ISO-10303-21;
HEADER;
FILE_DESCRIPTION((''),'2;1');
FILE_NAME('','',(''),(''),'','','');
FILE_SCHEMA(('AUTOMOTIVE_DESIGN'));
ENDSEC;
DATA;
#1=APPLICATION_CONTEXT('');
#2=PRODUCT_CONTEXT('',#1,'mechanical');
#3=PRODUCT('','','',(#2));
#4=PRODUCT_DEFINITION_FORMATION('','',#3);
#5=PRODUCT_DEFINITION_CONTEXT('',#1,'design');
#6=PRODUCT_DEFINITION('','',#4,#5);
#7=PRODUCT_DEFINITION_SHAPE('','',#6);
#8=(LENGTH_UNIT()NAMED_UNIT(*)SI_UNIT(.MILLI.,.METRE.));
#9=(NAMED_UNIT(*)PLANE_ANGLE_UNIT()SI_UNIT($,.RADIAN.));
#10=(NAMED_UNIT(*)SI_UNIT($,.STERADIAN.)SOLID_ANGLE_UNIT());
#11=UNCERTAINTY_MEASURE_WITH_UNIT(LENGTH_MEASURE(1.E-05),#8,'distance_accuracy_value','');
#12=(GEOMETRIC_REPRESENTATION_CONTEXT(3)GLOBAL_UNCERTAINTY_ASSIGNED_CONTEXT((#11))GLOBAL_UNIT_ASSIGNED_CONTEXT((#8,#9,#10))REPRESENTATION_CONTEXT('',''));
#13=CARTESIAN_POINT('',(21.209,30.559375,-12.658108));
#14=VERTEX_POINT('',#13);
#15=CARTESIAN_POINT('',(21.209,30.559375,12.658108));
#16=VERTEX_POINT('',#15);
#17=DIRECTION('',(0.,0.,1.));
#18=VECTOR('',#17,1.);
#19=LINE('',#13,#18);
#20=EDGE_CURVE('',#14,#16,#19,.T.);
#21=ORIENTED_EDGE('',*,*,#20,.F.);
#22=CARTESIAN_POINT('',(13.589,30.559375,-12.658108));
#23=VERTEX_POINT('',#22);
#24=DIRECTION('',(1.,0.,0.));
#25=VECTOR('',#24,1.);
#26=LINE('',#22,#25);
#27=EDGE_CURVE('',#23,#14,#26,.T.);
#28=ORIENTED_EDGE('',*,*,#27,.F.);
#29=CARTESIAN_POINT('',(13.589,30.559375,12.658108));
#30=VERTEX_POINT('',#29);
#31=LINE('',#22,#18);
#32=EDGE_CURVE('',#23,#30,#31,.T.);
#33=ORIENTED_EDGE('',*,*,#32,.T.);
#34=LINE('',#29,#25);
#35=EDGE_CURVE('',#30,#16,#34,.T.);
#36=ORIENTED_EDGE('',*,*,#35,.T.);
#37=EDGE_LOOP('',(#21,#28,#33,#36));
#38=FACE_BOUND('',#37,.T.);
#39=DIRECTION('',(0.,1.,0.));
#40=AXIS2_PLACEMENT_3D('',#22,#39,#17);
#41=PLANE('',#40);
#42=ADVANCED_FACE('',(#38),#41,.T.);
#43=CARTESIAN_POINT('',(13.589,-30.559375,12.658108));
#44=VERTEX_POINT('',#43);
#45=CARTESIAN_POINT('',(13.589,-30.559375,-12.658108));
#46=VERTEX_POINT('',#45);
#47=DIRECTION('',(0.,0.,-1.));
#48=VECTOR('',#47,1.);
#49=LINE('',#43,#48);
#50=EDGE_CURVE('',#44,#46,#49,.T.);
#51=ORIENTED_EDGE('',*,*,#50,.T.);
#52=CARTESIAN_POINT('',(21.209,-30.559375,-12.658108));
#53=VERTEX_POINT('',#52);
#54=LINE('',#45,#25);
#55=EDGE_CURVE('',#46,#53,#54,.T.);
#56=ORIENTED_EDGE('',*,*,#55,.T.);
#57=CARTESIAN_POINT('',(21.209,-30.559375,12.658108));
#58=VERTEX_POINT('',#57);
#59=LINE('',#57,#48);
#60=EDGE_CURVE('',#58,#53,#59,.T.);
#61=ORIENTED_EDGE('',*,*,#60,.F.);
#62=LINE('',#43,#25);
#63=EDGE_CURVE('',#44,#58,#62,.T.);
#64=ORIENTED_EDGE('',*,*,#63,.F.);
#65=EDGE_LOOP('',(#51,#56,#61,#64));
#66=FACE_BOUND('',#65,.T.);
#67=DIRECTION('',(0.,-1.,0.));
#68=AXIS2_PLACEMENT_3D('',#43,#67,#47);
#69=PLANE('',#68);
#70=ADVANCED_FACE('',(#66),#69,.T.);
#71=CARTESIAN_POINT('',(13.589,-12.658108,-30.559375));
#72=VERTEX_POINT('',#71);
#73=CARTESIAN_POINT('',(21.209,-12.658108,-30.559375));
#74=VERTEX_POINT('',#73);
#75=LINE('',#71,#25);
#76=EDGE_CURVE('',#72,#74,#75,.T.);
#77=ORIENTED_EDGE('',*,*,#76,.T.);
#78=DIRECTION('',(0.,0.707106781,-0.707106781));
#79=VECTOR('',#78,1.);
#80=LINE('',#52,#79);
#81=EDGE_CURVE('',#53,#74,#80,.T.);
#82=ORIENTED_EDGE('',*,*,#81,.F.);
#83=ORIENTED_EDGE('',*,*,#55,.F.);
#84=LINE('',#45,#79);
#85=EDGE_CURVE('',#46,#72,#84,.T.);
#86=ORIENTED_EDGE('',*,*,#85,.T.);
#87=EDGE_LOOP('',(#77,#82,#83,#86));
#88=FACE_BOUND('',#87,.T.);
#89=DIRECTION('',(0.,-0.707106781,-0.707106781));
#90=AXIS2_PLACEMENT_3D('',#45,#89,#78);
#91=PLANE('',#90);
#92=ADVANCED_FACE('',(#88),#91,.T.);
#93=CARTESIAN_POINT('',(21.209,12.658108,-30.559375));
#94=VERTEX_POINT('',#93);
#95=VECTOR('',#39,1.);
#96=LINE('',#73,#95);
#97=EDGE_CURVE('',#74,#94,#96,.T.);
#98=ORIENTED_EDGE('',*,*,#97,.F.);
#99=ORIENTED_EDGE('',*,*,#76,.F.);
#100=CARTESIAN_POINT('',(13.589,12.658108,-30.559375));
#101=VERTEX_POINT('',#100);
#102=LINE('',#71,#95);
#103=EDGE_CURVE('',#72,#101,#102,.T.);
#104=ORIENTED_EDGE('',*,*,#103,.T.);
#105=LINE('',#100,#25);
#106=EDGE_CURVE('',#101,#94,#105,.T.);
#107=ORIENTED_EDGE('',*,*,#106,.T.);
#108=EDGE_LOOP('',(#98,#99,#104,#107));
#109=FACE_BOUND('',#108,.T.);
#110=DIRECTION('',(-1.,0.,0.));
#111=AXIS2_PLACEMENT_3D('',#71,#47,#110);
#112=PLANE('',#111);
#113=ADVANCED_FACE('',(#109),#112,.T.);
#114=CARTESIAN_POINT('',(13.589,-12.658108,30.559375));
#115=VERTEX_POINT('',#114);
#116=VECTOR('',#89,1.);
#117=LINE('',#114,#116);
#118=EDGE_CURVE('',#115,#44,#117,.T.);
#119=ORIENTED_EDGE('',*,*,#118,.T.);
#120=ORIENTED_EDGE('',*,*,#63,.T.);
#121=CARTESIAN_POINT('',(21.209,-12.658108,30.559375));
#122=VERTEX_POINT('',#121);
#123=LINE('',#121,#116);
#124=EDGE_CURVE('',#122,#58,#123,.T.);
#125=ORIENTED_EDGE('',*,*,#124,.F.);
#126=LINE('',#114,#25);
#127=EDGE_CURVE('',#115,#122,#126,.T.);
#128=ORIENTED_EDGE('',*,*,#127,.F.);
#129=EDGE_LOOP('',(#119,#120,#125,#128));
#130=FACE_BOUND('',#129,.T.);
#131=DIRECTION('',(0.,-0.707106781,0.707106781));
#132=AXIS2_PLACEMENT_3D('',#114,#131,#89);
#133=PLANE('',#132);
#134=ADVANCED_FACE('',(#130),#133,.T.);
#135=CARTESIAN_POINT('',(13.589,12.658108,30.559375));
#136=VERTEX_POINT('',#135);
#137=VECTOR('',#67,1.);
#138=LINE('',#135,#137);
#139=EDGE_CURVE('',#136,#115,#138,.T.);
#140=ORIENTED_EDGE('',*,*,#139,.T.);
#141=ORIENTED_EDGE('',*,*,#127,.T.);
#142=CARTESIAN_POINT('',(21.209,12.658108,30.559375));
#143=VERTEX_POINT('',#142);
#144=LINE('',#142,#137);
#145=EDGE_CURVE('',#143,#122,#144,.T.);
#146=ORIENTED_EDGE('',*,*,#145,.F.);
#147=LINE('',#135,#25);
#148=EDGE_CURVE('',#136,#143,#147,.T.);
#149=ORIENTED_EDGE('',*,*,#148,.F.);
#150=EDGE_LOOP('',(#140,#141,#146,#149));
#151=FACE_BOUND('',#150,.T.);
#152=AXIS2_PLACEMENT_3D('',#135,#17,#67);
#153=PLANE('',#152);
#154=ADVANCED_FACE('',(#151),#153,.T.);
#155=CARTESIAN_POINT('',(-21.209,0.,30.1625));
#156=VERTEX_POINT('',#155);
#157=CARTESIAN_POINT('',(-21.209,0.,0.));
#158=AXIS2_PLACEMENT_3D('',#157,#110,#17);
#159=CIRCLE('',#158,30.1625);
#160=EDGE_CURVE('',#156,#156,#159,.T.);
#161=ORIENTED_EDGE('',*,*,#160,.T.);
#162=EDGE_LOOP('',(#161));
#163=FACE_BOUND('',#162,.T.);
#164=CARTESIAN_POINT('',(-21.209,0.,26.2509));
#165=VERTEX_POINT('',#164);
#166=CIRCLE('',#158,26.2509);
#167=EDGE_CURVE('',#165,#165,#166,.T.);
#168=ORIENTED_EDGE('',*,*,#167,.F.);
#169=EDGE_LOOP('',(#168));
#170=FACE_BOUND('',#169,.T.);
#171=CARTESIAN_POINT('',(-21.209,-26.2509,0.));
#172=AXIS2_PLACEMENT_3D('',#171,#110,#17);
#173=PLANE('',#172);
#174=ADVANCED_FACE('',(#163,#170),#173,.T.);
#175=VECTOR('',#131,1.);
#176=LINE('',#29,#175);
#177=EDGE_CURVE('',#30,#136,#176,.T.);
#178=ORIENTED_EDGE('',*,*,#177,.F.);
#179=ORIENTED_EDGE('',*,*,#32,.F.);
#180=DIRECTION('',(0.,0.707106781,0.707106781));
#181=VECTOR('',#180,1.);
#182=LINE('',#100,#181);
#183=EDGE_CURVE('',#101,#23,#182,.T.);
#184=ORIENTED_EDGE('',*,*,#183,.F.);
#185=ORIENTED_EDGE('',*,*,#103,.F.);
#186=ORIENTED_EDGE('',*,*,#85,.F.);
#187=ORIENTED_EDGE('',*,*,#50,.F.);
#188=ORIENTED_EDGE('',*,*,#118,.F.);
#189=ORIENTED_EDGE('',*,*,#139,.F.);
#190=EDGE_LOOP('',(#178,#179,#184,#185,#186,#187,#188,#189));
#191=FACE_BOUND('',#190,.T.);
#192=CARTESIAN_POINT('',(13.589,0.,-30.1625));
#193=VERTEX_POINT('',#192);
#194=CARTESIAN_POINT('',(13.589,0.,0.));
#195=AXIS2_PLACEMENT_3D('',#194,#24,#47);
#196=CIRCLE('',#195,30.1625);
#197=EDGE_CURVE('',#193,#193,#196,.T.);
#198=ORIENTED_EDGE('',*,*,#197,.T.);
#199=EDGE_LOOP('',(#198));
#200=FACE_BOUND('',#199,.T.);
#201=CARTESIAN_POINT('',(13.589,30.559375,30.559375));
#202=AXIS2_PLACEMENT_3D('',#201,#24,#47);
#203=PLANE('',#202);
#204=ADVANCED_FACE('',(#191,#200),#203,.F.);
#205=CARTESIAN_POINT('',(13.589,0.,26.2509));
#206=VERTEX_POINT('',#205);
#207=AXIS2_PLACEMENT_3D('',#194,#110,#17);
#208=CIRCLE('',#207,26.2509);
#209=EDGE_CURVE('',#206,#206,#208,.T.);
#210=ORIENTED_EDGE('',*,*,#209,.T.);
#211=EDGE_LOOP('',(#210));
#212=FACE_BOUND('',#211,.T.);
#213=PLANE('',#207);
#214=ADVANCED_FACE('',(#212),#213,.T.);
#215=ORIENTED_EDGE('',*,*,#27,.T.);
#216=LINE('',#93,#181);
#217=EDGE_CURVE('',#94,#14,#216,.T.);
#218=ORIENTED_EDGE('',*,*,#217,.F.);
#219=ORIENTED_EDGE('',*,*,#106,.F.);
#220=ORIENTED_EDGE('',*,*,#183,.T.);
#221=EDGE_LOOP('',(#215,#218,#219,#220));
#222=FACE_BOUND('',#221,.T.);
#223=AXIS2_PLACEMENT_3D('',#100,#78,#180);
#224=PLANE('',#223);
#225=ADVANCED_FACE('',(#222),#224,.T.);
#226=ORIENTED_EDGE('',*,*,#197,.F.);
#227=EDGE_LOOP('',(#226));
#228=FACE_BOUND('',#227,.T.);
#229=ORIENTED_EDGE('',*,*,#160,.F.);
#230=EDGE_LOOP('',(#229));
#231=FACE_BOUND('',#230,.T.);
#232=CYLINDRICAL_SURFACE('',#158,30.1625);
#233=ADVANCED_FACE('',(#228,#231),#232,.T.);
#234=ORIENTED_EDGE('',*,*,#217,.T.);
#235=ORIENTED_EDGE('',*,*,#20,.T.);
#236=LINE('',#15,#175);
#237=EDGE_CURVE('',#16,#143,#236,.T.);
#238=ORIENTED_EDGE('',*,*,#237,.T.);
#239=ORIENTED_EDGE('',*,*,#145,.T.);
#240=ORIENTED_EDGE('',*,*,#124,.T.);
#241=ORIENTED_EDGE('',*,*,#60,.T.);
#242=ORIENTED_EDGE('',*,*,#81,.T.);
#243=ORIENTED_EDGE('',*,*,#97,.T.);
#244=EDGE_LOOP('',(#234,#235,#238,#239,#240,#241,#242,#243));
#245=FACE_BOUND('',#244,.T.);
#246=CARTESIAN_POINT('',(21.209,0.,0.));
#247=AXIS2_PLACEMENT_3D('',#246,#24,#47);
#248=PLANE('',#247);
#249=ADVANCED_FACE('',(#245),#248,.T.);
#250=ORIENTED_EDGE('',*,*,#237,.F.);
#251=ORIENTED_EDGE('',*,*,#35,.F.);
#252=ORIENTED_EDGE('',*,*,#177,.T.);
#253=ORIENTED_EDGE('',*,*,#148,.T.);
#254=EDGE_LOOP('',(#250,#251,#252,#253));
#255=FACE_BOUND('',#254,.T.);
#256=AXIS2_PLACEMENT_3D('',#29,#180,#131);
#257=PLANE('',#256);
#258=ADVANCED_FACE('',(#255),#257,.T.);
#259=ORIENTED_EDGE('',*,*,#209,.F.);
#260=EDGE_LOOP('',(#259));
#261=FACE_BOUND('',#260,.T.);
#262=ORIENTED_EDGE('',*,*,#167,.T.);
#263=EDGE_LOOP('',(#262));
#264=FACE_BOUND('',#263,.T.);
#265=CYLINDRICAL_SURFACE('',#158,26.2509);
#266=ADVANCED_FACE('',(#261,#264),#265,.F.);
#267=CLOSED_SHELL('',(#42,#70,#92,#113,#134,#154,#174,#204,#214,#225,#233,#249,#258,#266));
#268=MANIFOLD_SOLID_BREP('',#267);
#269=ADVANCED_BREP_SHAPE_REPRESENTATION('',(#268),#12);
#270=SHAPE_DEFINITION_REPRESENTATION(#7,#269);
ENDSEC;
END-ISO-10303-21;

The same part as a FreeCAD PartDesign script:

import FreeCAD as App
import Part
import Sketcher

V = App.Vector
Q = App.Units.Quantity


def add_polygon(sketch, points):
    """Adds a closed chain of lines whose ends are joined by coincident constraints."""
    first, n = sketch.GeometryCount, len(points)
    for a, b in zip(points, points[1:] + points[:1]):
        sketch.addGeometry(Part.LineSegment(App.Vector(*a, 0), App.Vector(*b, 0)), False)
    for i in range(n):
        sketch.addConstraint(Sketcher.Constraint("Coincident", first + i, 2, first + (i + 1) % n, 1))

doc = App.newDocument("Part")
body = doc.addObject("PartDesign::Body", "Body")

sketch1 = body.newObject("Sketcher::SketchObject", "Sketch")
sketch1.AttachmentSupport = (doc.getObject("XY_Plane"), [""])
sketch1.MapMode = "FlatFace"
add_polygon(sketch1, [(-21.2, -30.2), (21.2, -30.2), (21.2, 0), (13.6, 0), (13.6, -26.3), (-21.2, -26.3)])
sketch1.addConstraint([
    Sketcher.Constraint("Horizontal", 0),
    Sketcher.Constraint("Vertical", 1),
    Sketcher.Constraint("Horizontal", 2),
    Sketcher.Constraint("Vertical", 3),
    Sketcher.Constraint("Horizontal", 4),
    Sketcher.Constraint("Vertical", 5),
    Sketcher.Constraint("PointOnObject", 1, 2, -1),
    Sketcher.Constraint("DistanceX", 2, 2, 2, 1, Q("0.3 in")),
    Sketcher.Constraint("DistanceX", 0, 1, 0, 2, Q("1.67 in")),
    Sketcher.Constraint("DistanceY", 1, 1, 1, 2, Q("1.1875 in")),
    Sketcher.Constraint("DistanceY", 5, 2, 5, 1, Q("0.154 in")),
    Sketcher.Constraint("DistanceX", -1, 1, 0, 2, Q("0.835 in")),
])
revolution = body.newObject("PartDesign::Revolution", "Revolution")
revolution.Profile = sketch1
revolution.ReferenceAxis = (sketch1, ["H_Axis"])
revolution.Angle = 360

sketch2 = body.newObject("Sketcher::SketchObject", "Sketch001")
sketch2.AttachmentSupport = (doc.getObject("YZ_Plane"), [""])
sketch2.MapMode = "FlatFace"
sketch2.AttachmentOffset = App.Placement(V(0, 0, 0.835 * 25.4), App.Rotation())
add_polygon(sketch2, [(31, 13), (13, 31), (-13, 31), (-31, 13), (-31, -13), (-13, -31), (13, -31), (31, -13)])
sketch2.addGeometry(Part.Circle(V(0, 0, 0), V(0, 0, 1), 30), False)
sketch2.addConstraint([
    Sketcher.Constraint("Horizontal", 1),
    Sketcher.Constraint("Vertical", 3),
    Sketcher.Constraint("Horizontal", 5),
    Sketcher.Constraint("Vertical", 7),
    Sketcher.Constraint("Coincident", 8, 3, -1, 1),
    Sketcher.Constraint("Symmetric", 0, 2, 4, 2, -1, 1),
    Sketcher.Constraint("Symmetric", 2, 2, 6, 2, -1, 1),
    Sketcher.Constraint("Perpendicular", 0, 2),
    Sketcher.Constraint("Perpendicular", 2, 4),
    Sketcher.Constraint("Perpendicular", 4, 6),
    Sketcher.Constraint("Horizontal", 3, 2, 6, 2),
    Sketcher.Constraint("Vertical", 1, 2, 4, 2),
    Sketcher.Constraint("Equal", 5, 3),
    Sketcher.Constraint("Diameter", 8, Q("2.375 in")),
    Sketcher.Constraint("DistanceY", -1, 1, 0, 2, Q("1.203125 in")),
    Sketcher.Constraint("DistanceX", 1, 2, 1, 1, 25.316215),
])
pad1 = body.newObject("PartDesign::Pad", "Pad")
pad1.Profile = sketch2
pad1.Length = Q("0.3 in")
pad1.Reversed = True

doc.recompute()
